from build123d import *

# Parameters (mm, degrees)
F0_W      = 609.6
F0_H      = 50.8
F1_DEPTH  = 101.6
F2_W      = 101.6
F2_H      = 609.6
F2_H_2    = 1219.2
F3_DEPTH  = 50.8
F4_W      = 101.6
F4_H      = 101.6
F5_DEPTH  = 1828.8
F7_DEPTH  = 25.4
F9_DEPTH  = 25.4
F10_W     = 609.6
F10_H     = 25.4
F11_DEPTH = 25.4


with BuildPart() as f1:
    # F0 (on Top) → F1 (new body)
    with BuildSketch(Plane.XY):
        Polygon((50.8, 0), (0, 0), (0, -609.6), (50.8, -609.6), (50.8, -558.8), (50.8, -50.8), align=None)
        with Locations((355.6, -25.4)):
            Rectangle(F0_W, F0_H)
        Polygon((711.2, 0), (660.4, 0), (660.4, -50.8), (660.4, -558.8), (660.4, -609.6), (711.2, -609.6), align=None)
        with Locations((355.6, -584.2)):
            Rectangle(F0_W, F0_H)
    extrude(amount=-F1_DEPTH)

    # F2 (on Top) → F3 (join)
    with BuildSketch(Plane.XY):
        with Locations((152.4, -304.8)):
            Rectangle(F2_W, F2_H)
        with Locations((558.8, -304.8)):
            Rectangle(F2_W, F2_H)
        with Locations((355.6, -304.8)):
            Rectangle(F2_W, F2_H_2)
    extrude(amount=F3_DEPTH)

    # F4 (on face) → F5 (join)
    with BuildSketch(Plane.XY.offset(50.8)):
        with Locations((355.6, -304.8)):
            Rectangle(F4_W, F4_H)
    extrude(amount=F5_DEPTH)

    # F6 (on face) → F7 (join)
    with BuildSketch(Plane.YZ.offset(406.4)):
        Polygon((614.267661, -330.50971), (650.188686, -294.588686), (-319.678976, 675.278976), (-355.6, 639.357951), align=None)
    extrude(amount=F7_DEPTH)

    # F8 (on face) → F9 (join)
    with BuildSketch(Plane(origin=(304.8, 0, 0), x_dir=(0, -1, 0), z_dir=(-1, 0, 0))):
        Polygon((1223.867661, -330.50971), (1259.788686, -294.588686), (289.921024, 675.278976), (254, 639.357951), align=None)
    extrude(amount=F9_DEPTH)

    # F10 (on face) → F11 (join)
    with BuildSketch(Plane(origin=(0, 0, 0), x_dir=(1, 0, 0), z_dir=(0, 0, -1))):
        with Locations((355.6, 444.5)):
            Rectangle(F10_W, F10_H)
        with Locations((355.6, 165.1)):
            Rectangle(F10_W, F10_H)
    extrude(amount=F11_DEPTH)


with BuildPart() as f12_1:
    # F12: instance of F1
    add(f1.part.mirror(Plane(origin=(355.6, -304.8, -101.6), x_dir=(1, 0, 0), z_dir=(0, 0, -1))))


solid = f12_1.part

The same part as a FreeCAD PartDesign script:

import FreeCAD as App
import Part
import Sketcher

V = App.Vector
Q = App.Units.Quantity

doc = App.newDocument("Part")
params = doc.addObject("Spreadsheet::Sheet", "Params")
for row, (alias, value) in enumerate([
    ("sketch1_width", "28 in"),
    ("sketch1_width2", "24 in"),
    ("sketch1_height", "20 in"),
    ("pad1_length", "4 in"),
    ("sketch2_width", "4 in"),
    ("sketch2_height", "24 in"),
    ("sketch2_height2", "48 in"),
    ("pad2_length", "2 in"),
    ("sketch3_width", "4 in"),
    ("pad3_length", "72 in"),
    ("sketch4_length", "2 in"),
    ("sketch4_length2", "54.0000001 in"),
    ("pad4_length", "1 in"),
    ("sketch5_length", "2 in"),
    ("sketch5_length2", "54.0000001 in"),
    ("pad5_length", "1 in"),
    ("sketch6_width", "24 in"),
    ("sketch6_height", "1 in"),
    ("pad6_length", "1 in"),
], start=1):
    params.set(f"A{row}", alias)
    params.set(f"B{row}", "=" + value)
    params.setAlias(f"B{row}", alias)

body = doc.addObject("PartDesign::Body", "Body")

sketch1 = body.newObject("Sketcher::SketchObject", "Sketch")
sketch1.AttachmentSupport = (doc.getObject("XY_Plane"), [""])
sketch1.MapMode = "FlatFace"
sketch1.addGeometry([
    Part.LineSegment(V(0, 0, 0), V(0, -610, 0)),
    Part.LineSegment(V(0, -610, 0), V(711, -610, 0)),
    Part.LineSegment(V(711, -610, 0), V(711, 0, 0)),
    Part.LineSegment(V(711, 0, 0), V(0, 0, 0)),
    Part.LineSegment(V(51, -559, 0), V(51, -51, 0)),
    Part.LineSegment(V(51, -51, 0), V(660, -51, 0)),
    Part.LineSegment(V(660, -51, 0), V(660, -559, 0)),
    Part.LineSegment(V(660, -559, 0), V(51, -559, 0)),
], False)
sketch1.addConstraint([
    Sketcher.Constraint("Coincident", 0, 2, 1, 1),
    Sketcher.Constraint("Coincident", 1, 2, 2, 1),
    Sketcher.Constraint("Coincident", 2, 2, 3, 1),
    Sketcher.Constraint("Coincident", 3, 2, 0, 1),
    Sketcher.Constraint("Coincident", 4, 2, 5, 1),
    Sketcher.Constraint("Coincident", 5, 2, 6, 1),
    Sketcher.Constraint("Coincident", 6, 2, 7, 1),
    Sketcher.Constraint("Coincident", 7, 2, 4, 1),
    Sketcher.Constraint("Vertical", 0),
    Sketcher.Constraint("Horizontal", 1),
    Sketcher.Constraint("Vertical", 2),
    Sketcher.Constraint("Horizontal", 3),
    Sketcher.Constraint("Vertical", 4),
    Sketcher.Constraint("Horizontal", 5),
    Sketcher.Constraint("Vertical", 6),
    Sketcher.Constraint("Horizontal", 7),
    Sketcher.Constraint("Coincident", 3, 2, -1, 1),
    Sketcher.Constraint("Equal", 7, 0),
    Sketcher.Constraint("DistanceX", 1, 1, 1, 2, Q("28 in")),
    Sketcher.Constraint("DistanceX", 5, 1, 5, 2, Q("24 in")),
    Sketcher.Constraint("DistanceY", 4, 1, 4, 2, Q("20 in")),
    Sketcher.Constraint("DistanceX", -1, 1, 4, 2, Q("2 in")),
    Sketcher.Constraint("DistanceY", 4, 2, -1, 1, Q("2 in")),
])
sketch1.setExpression("Constraints[18]", "Params.sketch1_width")
sketch1.setExpression("Constraints[19]", "Params.sketch1_width2")
sketch1.setExpression("Constraints[20]", "Params.sketch1_height")
pad1 = body.newObject("PartDesign::Pad", "Pad")
pad1.Profile = sketch1
pad1.setExpression("Length", "Params.pad1_length")
pad1.Reversed = True

sketch2 = body.newObject("Sketcher::SketchObject", "Sketch001")
sketch2.AttachmentSupport = (doc.getObject("XY_Plane"), [""])
sketch2.MapMode = "FlatFace"
sketch2.addGeometry([
    Part.LineSegment(V(102, 0, 0), V(102, -610, 0)),
    Part.LineSegment(V(102, -610, 0), V(203, -610, 0)),
    Part.LineSegment(V(203, -610, 0), V(203, 0, 0)),
    Part.LineSegment(V(203, 0, 0), V(102, 0, 0)),
    Part.LineSegment(V(508, 0, 0), V(508, -610, 0)),
    Part.LineSegment(V(508, -610, 0), V(610, -610, 0)),
    Part.LineSegment(V(610, -610, 0), V(610, 0, 0)),
    Part.LineSegment(V(610, 0, 0), V(508, 0, 0)),
    Part.LineSegment(V(305, 305, 0), V(305, -914, 0)),
    Part.LineSegment(V(305, -914, 0), V(406, -914, 0)),
    Part.LineSegment(V(406, -914, 0), V(406, 305, 0)),
    Part.LineSegment(V(406, 305, 0), V(305, 305, 0)),
], False)
sketch2.addConstraint([
    Sketcher.Constraint("Coincident", 0, 2, 1, 1),
    Sketcher.Constraint("Coincident", 1, 2, 2, 1),
    Sketcher.Constraint("Coincident", 2, 2, 3, 1),
    Sketcher.Constraint("Coincident", 3, 2, 0, 1),
    Sketcher.Constraint("Coincident", 4, 2, 5, 1),
    Sketcher.Constraint("Coincident", 5, 2, 6, 1),
    Sketcher.Constraint("Coincident", 6, 2, 7, 1),
    Sketcher.Constraint("Coincident", 7, 2, 4, 1),
    Sketcher.Constraint("Coincident", 8, 2, 9, 1),
    Sketcher.Constraint("Coincident", 9, 2, 10, 1),
    Sketcher.Constraint("Coincident", 10, 2, 11, 1),
    Sketcher.Constraint("Coincident", 11, 2, 8, 1),
    Sketcher.Constraint("Vertical", 0),
    Sketcher.Constraint("Horizontal", 1),
    Sketcher.Constraint("Vertical", 2),
    Sketcher.Constraint("Horizontal", 3),
    Sketcher.Constraint("Vertical", 4),
    Sketcher.Constraint("Horizontal", 5),
    Sketcher.Constraint("Vertical", 6),
    Sketcher.Constraint("Horizontal", 7),
    Sketcher.Constraint("Vertical", 8),
    Sketcher.Constraint("Horizontal", 9),
    Sketcher.Constraint("Vertical", 10),
    Sketcher.Constraint("Horizontal", 11),
    Sketcher.Constraint("PointOnObject", 2, 2, -1),
    Sketcher.Constraint("PointOnObject", 6, 2, -1),
    Sketcher.Constraint("Horizontal", 1, 2, 4, 2),
    Sketcher.Constraint("Equal", 3, 5),
    Sketcher.Constraint("Equal", 7, 9),
    Sketcher.Constraint("DistanceX", 1, 1, 1, 2, Q("4 in")),
    Sketcher.Constraint("DistanceY", 0, 2, 0, 1, Q("24 in")),
    Sketcher.Constraint("DistanceY", 8, 2, 8, 1, Q("48 in")),
    Sketcher.Constraint("DistanceX", -1, 1, 0, 2, Q("4 in")),
    Sketcher.Constraint("DistanceX", -1, 1, 4, 2, Q("20 in")),
    Sketcher.Constraint("DistanceX", -1, 1, 8, 2, Q("12 in")),
    Sketcher.Constraint("DistanceY", 8, 2, -1, 1, Q("36 in")),
])
sketch2.setExpression("Constraints[29]", "Params.sketch2_width")
sketch2.setExpression("Constraints[30]", "Params.sketch2_height")
sketch2.setExpression("Constraints[31]", "Params.sketch2_height2")
pad2 = body.newObject("PartDesign::Pad", "Pad001")
pad2.Profile = sketch2
pad2.setExpression("Length", "Params.pad2_length")

sketch3 = body.newObject("Sketcher::SketchObject", "Sketch002")
sketch3.AttachmentSupport = (doc.getObject("XY_Plane"), [""])
sketch3.MapMode = "FlatFace"
sketch3.AttachmentOffset = App.Placement(V(0, 0, 2 * 25.4), App.Rotation())
sketch3.addGeometry([
    Part.LineSegment(V(305, -254, 0), V(305, -356, 0)),
    Part.LineSegment(V(305, -356, 0), V(406, -356, 0)),
    Part.LineSegment(V(406, -356, 0), V(406, -254, 0)),
    Part.LineSegment(V(406, -254, 0), V(305, -254, 0)),
], False)
sketch3.addConstraint([
    Sketcher.Constraint("Coincident", 0, 2, 1, 1),
    Sketcher.Constraint("Coincident", 1, 2, 2, 1),
    Sketcher.Constraint("Coincident", 2, 2, 3, 1),
    Sketcher.Constraint("Coincident", 3, 2, 0, 1),
    Sketcher.Constraint("Vertical", 0),
    Sketcher.Constraint("Horizontal", 1),
    Sketcher.Constraint("Vertical", 2),
    Sketcher.Constraint("Horizontal", 3),
    Sketcher.Constraint("Equal", 3, 0),
    Sketcher.Constraint("DistanceX", 1, 1, 1, 2, Q("4 in")),
    Sketcher.Constraint("DistanceX", -1, 1, 0, 2, Q("12 in")),
    Sketcher.Constraint("DistanceY", 0, 2, -1, 1, Q("14 in")),
])
sketch3.setExpression("Constraints[9]", "Params.sketch3_width")
pad3 = body.newObject("PartDesign::Pad", "Pad002")
pad3.Profile = sketch3
pad3.setExpression("Length", "Params.pad3_length")

sketch4 = body.newObject("Sketcher::SketchObject", "Sketch003")
sketch4.AttachmentSupport = (doc.getObject("YZ_Plane"), [""])
sketch4.MapMode = "FlatFace"
sketch4.AttachmentOffset = App.Placement(V(0, 0, 16 * 25.4), App.Rotation())
sketch4.addGeometry([
    Part.LineSegment(V(614.267661, -330.50971, 0), V(650.188686, -294.588686, 0)),
    Part.LineSegment(V(650.188686, -294.588686, 0), V(-319.678976, 675.278976, 0)),
    Part.LineSegment(V(-319.678976, 675.278976, 0), V(-355.6, 639.357951, 0)),
    Part.LineSegment(V(-355.6, 639.357951, 0), V(614.267661, -330.50971, 0)),
], False)
sketch4.addConstraint([
    Sketcher.Constraint("Coincident", 0, 2, 1, 1),
    Sketcher.Constraint("Coincident", 1, 2, 2, 1),
    Sketcher.Constraint("Coincident", 2, 2, 3, 1),
    Sketcher.Constraint("Coincident", 3, 2, 0, 1),
    Sketcher.Constraint("Perpendicular", 0, 1),
    Sketcher.Constraint("Perpendicular", 1, 2),
    Sketcher.Constraint("Perpendicular", 2, 3),
    Sketcher.Constraint("Distance", 0, Q("2 in")),
    Sketcher.Constraint("Distance", 1, Q("54.0000001 in")),
    Sketcher.Constraint("DistanceX", 2, 2, -1, 1, Q("14 in")),
    Sketcher.Constraint("Angle", 0, Q("44.999999 deg")),
    Sketcher.Constraint("DistanceY", -1, 1, 2, 2, Q("639.357951 mm")),
])
sketch4.setExpression("Constraints[7]", "Params.sketch4_length")
sketch4.setExpression("Constraints[8]", "Params.sketch4_length2")
pad4 = body.newObject("PartDesign::Pad", "Pad003")
pad4.Profile = sketch4
pad4.setExpression("Length", "Params.pad4_length")

sketch5 = body.newObject("Sketcher::SketchObject", "Sketch004")
sketch5.AttachmentSupport = (doc.getObject("YZ_Plane"), [""])
sketch5.MapMode = "FlatFace"
sketch5.AttachmentOffset = App.Placement(V(0, 0, 12 * 25.4), App.Rotation())
sketch5.addGeometry([
    Part.LineSegment(V(-1223.867661, -330.50971, 0), V(-1259.788686, -294.588686, 0)),
    Part.LineSegment(V(-1259.788686, -294.588686, 0), V(-289.921024, 675.278976, 0)),
    Part.LineSegment(V(-289.921024, 675.278976, 0), V(-254, 639.357951, 0)),
    Part.LineSegment(V(-254, 639.357951, 0), V(-1223.867661, -330.50971, 0)),
], False)
sketch5.addConstraint([
    Sketcher.Constraint("Coincident", 0, 2, 1, 1),
    Sketcher.Constraint("Coincident", 1, 2, 2, 1),
    Sketcher.Constraint("Coincident", 2, 2, 3, 1),
    Sketcher.Constraint("Coincident", 3, 2, 0, 1),
    Sketcher.Constraint("Perpendicular", 0, 1),
    Sketcher.Constraint("Perpendicular", 1, 2),
    Sketcher.Constraint("Perpendicular", 2, 3),
    Sketcher.Constraint("Distance", 0, Q("2 in")),
    Sketcher.Constraint("Distance", 1, Q("54.0000001 in")),
    Sketcher.Constraint("DistanceX", 2, 2, -1, 1, Q("10 in")),
    Sketcher.Constraint("Angle", 0, Q("135.000001 deg")),
    Sketcher.Constraint("DistanceY", -1, 1, 2, 2, Q("639.357951 mm")),
])
sketch5.setExpression("Constraints[7]", "Params.sketch5_length")
sketch5.setExpression("Constraints[8]", "Params.sketch5_length2")
pad5 = body.newObject("PartDesign::Pad", "Pad004")
pad5.Profile = sketch5
pad5.setExpression("Length", "Params.pad5_length")
pad5.Reversed = True

sketch6 = body.newObject("Sketcher::SketchObject", "Sketch005")
sketch6.AttachmentSupport = (doc.getObject("XY_Plane"), [""])
sketch6.MapMode = "FlatFace"
sketch6.addGeometry([
    Part.LineSegment(V(51, -457, 0), V(51, -432, 0)),
    Part.LineSegment(V(51, -432, 0), V(660, -432, 0)),
    Part.LineSegment(V(660, -432, 0), V(660, -457, 0)),
    Part.LineSegment(V(660, -457, 0), V(51, -457, 0)),
    Part.LineSegment(V(51, -178, 0), V(51, -152, 0)),
    Part.LineSegment(V(51, -152, 0), V(660, -152, 0)),
    Part.LineSegment(V(660, -152, 0), V(660, -178, 0)),
    Part.LineSegment(V(660, -178, 0), V(51, -178, 0)),
], False)
sketch6.addConstraint([
    Sketcher.Constraint("Coincident", 0, 2, 1, 1),
    Sketcher.Constraint("Coincident", 1, 2, 2, 1),
    Sketcher.Constraint("Coincident", 2, 2, 3, 1),
    Sketcher.Constraint("Coincident", 3, 2, 0, 1),
    Sketcher.Constraint("Coincident", 4, 2, 5, 1),
    Sketcher.Constraint("Coincident", 5, 2, 6, 1),
    Sketcher.Constraint("Coincident", 6, 2, 7, 1),
    Sketcher.Constraint("Coincident", 7, 2, 4, 1),
    Sketcher.Constraint("Vertical", 0),
    Sketcher.Constraint("Horizontal", 1),
    Sketcher.Constraint("Vertical", 2),
    Sketcher.Constraint("Horizontal", 3),
    Sketcher.Constraint("Vertical", 4),
    Sketcher.Constraint("Horizontal", 5),
    Sketcher.Constraint("Vertical", 6),
    Sketcher.Constraint("Horizontal", 7),
    Sketcher.Constraint("Vertical", 3, 2, 4, 2),
    Sketcher.Constraint("Vertical", 2, 2, 5, 2),
    Sketcher.Constraint("Equal", 2, 4),
    Sketcher.Constraint("DistanceX", 1, 1, 1, 2, Q("24 in")),
    Sketcher.Constraint("DistanceY", 0, 1, 0, 2, Q("1 in")),
    Sketcher.Constraint("DistanceX", -1, 1, 0, 2, Q("2 in")),
    Sketcher.Constraint("DistanceY", 0, 2, -1, 1, Q("17 in")),
    Sketcher.Constraint("DistanceY", 4, 2, -1, 1, Q("6 in")),
])
sketch6.setExpression("Constraints[19]", "Params.sketch6_width")
sketch6.setExpression("Constraints[20]", "Params.sketch6_height")
pad6 = body.newObject("PartDesign::Pad", "Pad005")
pad6.Profile = sketch6
pad6.setExpression("Length", "Params.pad6_length")
pad6.Reversed = True
body2 = doc.addObject("PartDesign::Body", "Body001")
doc.recompute()

mirroring = doc.addObject("Part::Mirroring", "Mirroring")
mirroring.Source = body
mirroring.Base = V(355.6, -304.8, -101.6)
mirroring.Normal = V(0, 0, -1)
body2.BaseFeature = mirroring
doc.recompute()
body.Visibility = False
mirroring.Visibility = False

doc.recompute()
